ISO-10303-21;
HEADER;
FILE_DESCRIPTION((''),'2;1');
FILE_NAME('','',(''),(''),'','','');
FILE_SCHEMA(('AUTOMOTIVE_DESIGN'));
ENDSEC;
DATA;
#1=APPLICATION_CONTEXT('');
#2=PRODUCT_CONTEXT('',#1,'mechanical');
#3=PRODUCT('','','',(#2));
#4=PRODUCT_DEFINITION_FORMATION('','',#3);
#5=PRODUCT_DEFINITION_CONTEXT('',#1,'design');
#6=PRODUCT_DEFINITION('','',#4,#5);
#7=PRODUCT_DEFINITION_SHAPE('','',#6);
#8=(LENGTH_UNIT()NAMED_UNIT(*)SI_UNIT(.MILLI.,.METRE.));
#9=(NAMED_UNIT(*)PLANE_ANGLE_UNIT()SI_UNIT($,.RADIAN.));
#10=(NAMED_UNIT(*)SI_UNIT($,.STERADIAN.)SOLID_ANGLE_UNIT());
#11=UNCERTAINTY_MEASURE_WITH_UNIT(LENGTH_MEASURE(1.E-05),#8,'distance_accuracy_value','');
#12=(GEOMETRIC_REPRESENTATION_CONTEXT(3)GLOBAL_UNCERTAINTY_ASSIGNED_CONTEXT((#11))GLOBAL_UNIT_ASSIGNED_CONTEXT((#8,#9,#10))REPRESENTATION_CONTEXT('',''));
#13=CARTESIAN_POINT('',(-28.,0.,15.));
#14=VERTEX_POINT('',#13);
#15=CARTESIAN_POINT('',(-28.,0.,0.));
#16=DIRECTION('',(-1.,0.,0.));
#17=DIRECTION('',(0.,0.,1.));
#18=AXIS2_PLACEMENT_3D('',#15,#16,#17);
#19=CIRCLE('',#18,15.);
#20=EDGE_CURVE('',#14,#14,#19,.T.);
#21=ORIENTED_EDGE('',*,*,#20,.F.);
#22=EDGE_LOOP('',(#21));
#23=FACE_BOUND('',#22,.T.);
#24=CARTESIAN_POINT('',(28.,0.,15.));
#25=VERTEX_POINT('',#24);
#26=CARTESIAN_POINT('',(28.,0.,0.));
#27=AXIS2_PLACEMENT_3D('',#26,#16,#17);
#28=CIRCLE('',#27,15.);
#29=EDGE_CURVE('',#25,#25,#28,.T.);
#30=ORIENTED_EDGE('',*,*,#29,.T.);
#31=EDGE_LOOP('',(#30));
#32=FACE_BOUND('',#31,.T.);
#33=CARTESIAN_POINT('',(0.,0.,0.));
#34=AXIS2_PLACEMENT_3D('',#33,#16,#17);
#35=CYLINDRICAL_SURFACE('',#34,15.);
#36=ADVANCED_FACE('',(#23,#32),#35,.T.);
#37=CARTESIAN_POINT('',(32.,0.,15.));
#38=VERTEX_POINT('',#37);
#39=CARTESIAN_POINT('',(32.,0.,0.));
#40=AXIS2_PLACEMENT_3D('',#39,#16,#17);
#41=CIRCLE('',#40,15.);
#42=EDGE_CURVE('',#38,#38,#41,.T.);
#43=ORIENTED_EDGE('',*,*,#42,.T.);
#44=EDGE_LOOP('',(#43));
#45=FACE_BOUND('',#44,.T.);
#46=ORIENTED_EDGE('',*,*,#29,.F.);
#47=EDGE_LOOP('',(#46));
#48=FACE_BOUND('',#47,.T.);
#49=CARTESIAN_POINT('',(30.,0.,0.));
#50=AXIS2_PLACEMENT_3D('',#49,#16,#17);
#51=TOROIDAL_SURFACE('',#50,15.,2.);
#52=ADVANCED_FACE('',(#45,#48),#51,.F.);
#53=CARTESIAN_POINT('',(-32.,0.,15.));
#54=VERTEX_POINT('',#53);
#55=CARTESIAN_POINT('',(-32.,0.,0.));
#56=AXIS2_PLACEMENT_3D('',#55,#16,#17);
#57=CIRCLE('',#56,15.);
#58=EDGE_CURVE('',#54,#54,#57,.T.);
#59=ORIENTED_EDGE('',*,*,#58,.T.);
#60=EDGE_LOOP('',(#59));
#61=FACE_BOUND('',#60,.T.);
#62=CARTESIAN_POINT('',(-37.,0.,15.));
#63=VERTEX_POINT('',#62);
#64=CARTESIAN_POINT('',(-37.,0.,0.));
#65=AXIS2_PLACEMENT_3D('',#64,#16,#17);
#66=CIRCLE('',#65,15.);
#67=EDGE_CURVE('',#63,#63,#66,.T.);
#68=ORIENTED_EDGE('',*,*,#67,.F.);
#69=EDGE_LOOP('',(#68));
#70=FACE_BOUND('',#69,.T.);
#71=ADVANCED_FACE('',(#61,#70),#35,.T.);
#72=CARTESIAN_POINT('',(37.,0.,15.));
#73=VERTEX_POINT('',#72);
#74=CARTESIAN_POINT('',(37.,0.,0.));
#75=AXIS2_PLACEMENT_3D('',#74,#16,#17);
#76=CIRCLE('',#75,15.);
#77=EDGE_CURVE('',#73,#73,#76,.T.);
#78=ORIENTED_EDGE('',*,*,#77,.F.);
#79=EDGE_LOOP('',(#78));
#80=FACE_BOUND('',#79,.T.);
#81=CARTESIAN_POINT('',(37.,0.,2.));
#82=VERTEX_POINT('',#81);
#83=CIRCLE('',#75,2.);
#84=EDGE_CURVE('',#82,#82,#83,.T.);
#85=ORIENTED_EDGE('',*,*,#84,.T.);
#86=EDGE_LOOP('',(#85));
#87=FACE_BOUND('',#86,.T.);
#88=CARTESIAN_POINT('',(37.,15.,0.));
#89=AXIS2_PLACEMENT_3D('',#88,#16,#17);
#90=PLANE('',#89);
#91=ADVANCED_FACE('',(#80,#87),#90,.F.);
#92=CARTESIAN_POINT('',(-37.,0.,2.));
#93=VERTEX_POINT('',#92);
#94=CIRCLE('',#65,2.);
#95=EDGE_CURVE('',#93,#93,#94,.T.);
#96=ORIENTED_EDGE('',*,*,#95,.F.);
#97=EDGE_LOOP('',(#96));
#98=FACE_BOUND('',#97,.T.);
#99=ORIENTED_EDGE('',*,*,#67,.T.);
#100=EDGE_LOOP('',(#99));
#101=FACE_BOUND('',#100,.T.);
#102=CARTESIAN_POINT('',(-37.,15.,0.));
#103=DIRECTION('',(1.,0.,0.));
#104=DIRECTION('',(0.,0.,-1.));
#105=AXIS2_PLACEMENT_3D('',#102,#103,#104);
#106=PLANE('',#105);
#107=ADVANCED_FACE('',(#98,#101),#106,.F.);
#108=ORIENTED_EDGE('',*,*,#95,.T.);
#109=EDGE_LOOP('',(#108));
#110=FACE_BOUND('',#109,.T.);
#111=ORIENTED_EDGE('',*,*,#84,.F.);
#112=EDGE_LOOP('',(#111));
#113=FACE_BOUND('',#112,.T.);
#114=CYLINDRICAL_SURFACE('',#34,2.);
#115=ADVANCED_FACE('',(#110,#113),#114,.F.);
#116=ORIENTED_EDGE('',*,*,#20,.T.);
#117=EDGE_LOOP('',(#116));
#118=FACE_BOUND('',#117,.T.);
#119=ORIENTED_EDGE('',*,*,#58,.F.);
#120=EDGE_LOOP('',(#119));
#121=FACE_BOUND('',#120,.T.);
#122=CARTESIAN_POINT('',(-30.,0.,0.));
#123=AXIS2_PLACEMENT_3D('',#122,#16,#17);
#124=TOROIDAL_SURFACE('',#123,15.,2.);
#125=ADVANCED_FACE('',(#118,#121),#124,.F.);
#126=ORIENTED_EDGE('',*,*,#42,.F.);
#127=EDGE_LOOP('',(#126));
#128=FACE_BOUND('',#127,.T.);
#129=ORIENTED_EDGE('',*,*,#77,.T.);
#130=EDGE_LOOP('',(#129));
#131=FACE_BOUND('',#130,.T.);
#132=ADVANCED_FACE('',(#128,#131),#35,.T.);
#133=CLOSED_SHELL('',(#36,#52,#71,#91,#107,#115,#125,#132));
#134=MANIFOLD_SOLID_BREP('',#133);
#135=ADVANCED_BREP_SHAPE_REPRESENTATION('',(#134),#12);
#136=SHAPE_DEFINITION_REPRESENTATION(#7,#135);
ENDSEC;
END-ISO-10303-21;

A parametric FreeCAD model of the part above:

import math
import FreeCAD as App
import Part
import Sketcher

doc = App.newDocument("Part")
body = doc.addObject("PartDesign::Body", "Body")

# Sketch on XY plane
sketch1 = body.newObject("Sketcher::SketchObject", "Sketch")
sketch1.AttachmentSupport = (doc.getObject("XY_Plane"), [""])
sketch1.MapMode = "FlatFace"
sketch1.addGeometry(Part.LineSegment(App.Vector(-32, 15, 0), App.Vector(-37, 15, 0)), False)
sketch1.addGeometry(Part.LineSegment(App.Vector(-37, 15, 0), App.Vector(-37, 2, 0)), False)
sketch1.addGeometry(Part.LineSegment(App.Vector(-37, 2, 0), App.Vector(37, 2, 0)), False)
sketch1.addGeometry(Part.LineSegment(App.Vector(37, 2, 0), App.Vector(37, 15, 0)), False)
sketch1.addGeometry(Part.LineSegment(App.Vector(37, 15, 0), App.Vector(32, 15, 0)), False)
sketch1.addGeometry(Part.ArcOfCircle(Part.Circle(App.Vector(30, 15, 0), App.Vector(0, 0, 1), 2), math.radians(180), math.radians(360)), False)
sketch1.addGeometry(Part.LineSegment(App.Vector(28, 15, 0), App.Vector(-28, 15, 0)), False)
sketch1.addGeometry(Part.ArcOfCircle(Part.Circle(App.Vector(-30, 15, 0), App.Vector(0, 0, 1), 2), math.radians(180), math.radians(360)), False)
sketch1.addConstraint(Sketcher.Constraint("Coincident", 0, 2, 1, 1))
sketch1.addConstraint(Sketcher.Constraint("Coincident", 1, 2, 2, 1))
sketch1.addConstraint(Sketcher.Constraint("Coincident", 2, 2, 3, 1))
sketch1.addConstraint(Sketcher.Constraint("Coincident", 3, 2, 4, 1))
sketch1.addConstraint(Sketcher.Constraint("Coincident", 4, 2, 5, 2))
sketch1.addConstraint(Sketcher.Constraint("Coincident", 5, 1, 6, 1))
sketch1.addConstraint(Sketcher.Constraint("Coincident", 6, 2, 7, 2))
sketch1.addConstraint(Sketcher.Constraint("Coincident", 7, 1, 0, 1))
sketch1.addConstraint(Sketcher.Constraint("Horizontal", 0))
sketch1.addConstraint(Sketcher.Constraint("Vertical", 1))
sketch1.addConstraint(Sketcher.Constraint("Horizontal", 2))
sketch1.addConstraint(Sketcher.Constraint("Vertical", 3))
sketch1.addConstraint(Sketcher.Constraint("Horizontal", 4))
sketch1.addConstraint(Sketcher.Constraint("Horizontal", 6))
sketch1.addConstraint(Sketcher.Constraint("Equal", 5, 7))
sketch1.addConstraint(Sketcher.Constraint("Symmetric", 5, 3, 7, 3, -2))
sketch1.addConstraint(Sketcher.Constraint("Symmetric", 0, 2, 3, 2, -2))
sketch1.addConstraint(Sketcher.Constraint("Horizontal", 7, 3, 0, 2))
sketch1.addConstraint(Sketcher.Constraint("Horizontal", 4, 2, 5, 1))
sketch1.addConstraint(Sketcher.Constraint("Radius", 5, 2.0))
sketch1.addConstraint(Sketcher.Constraint("DistanceX", 0, 2, 0, 1, 5.0))
sketch1.addConstraint(Sketcher.Constraint("DistanceX", 2, 1, 2, 2, 74.0))
sketch1.addConstraint(Sketcher.Constraint("DistanceY", 1, 2, 1, 1, 13.0))
sketch1.addConstraint(Sketcher.Constraint("DistanceY", -1, 1, 5, 3, 15.0))
revolution = body.newObject("PartDesign::Revolution", "Revolution")
revolution.Profile = sketch1
revolution.ReferenceAxis = (sketch1, ["H_Axis"])
revolution.Angle = 360

doc.recompute()
